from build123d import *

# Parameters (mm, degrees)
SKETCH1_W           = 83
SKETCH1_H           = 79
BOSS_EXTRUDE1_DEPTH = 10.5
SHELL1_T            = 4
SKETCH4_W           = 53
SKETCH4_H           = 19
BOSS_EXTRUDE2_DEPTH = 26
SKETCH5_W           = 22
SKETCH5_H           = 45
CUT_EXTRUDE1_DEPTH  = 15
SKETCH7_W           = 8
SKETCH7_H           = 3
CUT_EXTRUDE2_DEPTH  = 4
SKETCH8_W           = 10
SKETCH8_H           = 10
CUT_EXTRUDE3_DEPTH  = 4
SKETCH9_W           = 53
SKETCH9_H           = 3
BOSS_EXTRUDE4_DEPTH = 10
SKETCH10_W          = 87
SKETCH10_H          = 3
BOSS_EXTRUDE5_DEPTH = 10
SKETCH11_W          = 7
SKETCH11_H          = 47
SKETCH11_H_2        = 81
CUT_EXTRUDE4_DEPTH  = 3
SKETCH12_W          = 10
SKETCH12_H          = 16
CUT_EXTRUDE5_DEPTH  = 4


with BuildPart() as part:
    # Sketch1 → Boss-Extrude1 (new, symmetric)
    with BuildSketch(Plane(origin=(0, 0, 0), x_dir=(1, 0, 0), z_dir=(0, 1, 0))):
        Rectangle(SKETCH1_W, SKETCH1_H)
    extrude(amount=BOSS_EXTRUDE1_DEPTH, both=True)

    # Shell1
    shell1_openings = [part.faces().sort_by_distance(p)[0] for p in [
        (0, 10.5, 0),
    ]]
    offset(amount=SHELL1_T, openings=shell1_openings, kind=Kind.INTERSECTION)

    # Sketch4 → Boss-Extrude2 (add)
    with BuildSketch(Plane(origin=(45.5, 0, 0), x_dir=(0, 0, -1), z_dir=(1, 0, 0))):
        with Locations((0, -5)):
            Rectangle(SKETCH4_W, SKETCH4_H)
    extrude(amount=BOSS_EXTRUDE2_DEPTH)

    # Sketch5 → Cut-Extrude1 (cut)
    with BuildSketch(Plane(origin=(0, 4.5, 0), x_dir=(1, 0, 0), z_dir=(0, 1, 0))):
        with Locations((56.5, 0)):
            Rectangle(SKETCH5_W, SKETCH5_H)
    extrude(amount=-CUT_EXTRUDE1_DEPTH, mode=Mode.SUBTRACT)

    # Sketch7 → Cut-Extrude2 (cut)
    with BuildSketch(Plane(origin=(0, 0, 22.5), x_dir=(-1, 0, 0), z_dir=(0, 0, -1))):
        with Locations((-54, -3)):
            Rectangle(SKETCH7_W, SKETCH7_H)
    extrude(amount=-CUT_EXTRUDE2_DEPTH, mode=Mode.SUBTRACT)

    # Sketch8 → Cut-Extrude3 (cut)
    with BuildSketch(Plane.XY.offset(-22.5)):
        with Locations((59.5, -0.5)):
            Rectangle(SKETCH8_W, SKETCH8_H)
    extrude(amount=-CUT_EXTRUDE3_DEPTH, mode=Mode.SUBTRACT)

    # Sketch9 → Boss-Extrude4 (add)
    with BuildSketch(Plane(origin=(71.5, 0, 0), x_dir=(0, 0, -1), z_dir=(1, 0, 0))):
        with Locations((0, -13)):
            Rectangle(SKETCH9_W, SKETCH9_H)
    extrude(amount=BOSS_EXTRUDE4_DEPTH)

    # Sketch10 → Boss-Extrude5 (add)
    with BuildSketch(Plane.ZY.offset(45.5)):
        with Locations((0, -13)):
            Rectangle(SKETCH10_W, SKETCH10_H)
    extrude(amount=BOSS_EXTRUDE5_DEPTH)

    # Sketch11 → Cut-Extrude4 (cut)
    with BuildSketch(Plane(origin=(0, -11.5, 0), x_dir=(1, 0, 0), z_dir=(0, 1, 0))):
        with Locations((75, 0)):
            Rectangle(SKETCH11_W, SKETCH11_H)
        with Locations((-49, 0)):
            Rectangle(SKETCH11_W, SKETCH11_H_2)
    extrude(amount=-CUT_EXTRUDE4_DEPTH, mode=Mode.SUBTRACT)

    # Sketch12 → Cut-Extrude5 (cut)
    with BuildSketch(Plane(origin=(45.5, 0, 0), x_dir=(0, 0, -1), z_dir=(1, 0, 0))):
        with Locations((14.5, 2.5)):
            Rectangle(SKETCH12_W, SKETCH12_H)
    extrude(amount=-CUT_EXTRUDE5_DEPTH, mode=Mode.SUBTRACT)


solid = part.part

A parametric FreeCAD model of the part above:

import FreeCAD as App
import Part
import Sketcher

V = App.Vector


def faces_at(feature, points):
    """Names of the faces that lie closest to the given points."""
    faces = feature.Shape.Faces
    near = lambda p: min(range(len(faces)), key=lambda i: faces[i].distToShape(Part.Vertex(*p))[0])
    return sorted({f"Face{near(p) + 1}" for p in points})

doc = App.newDocument("Part")
body = doc.addObject("PartDesign::Body", "Body")

# Sketch on XZ plane
sketch1 = body.newObject("Sketcher::SketchObject", "Sketch")
sketch1.AttachmentSupport = (doc.getObject("XZ_Plane"), [""])
sketch1.MapMode = "FlatFace"
sketch1.addGeometry([
    Part.LineSegment(V(-41.5, -39.5, 0), V(-41.5, 39.5, 0)),
    Part.LineSegment(V(-41.5, 39.5, 0), V(41.5, 39.5, 0)),
    Part.LineSegment(V(41.5, 39.5, 0), V(41.5, -39.5, 0)),
    Part.LineSegment(V(41.5, -39.5, 0), V(-41.5, -39.5, 0)),
], False)
sketch1.addConstraint([
    Sketcher.Constraint("Coincident", 0, 2, 1, 1),
    Sketcher.Constraint("Coincident", 1, 2, 2, 1),
    Sketcher.Constraint("Coincident", 2, 2, 3, 1),
    Sketcher.Constraint("Coincident", 3, 2, 0, 1),
    Sketcher.Constraint("Vertical", 0),
    Sketcher.Constraint("Horizontal", 1),
    Sketcher.Constraint("Vertical", 2),
    Sketcher.Constraint("Horizontal", 3),
    Sketcher.Constraint("Symmetric", 0, 2, 2, 2, -1, 1),
    Sketcher.Constraint("DistanceX", 1, 1, 1, 2, 83.0),
    Sketcher.Constraint("DistanceY", 0, 1, 0, 2, 79.0),
])
pad1 = body.newObject("PartDesign::Pad", "Pad")
pad1.Profile = sketch1
pad1.Length = 21
pad1.Midplane = True
doc.recompute()

thickness = body.newObject("PartDesign::Thickness", "Thickness")
thickness.Base = (pad1, faces_at(pad1, [(0, 10.5, 0)]))
thickness.Value = 4
thickness.Reversed = False
thickness.Join = "Intersection"

# Sketch on YZ plane
sketch2 = body.newObject("Sketcher::SketchObject", "Sketch001")
sketch2.AttachmentSupport = (doc.getObject("YZ_Plane"), [""])
sketch2.MapMode = "FlatFace"
sketch2.AttachmentOffset = App.Placement(V(0, 0, 45.5), App.Rotation())
sketch2.addGeometry([
    Part.LineSegment(V(4.5, 26.5, 0), V(-14.5, 26.5, 0)),
    Part.LineSegment(V(-14.5, 26.5, 0), V(-14.5, -26.5, 0)),
    Part.LineSegment(V(-14.5, -26.5, 0), V(4.5, -26.5, 0)),
    Part.LineSegment(V(4.5, -26.5, 0), V(4.5, 26.5, 0)),
], False)
sketch2.addConstraint([
    Sketcher.Constraint("Coincident", 0, 2, 1, 1),
    Sketcher.Constraint("Coincident", 1, 2, 2, 1),
    Sketcher.Constraint("Coincident", 2, 2, 3, 1),
    Sketcher.Constraint("Coincident", 3, 2, 0, 1),
    Sketcher.Constraint("Horizontal", 0),
    Sketcher.Constraint("Vertical", 1),
    Sketcher.Constraint("Horizontal", 2),
    Sketcher.Constraint("Vertical", 3),
    Sketcher.Constraint("DistanceX", 0, 2, 0, 1, 19.0),
    Sketcher.Constraint("DistanceY", 1, 2, 1, 1, 53.0),
    Sketcher.Constraint("DistanceX", 0, 2, -1, 1, 14.5),
    Sketcher.Constraint("DistanceY", -1, 1, 0, 2, 26.5),
])
pad2 = body.newObject("PartDesign::Pad", "Pad001")
pad2.Profile = sketch2
pad2.Length = 26

# Sketch on XZ plane
sketch3 = body.newObject("Sketcher::SketchObject", "Sketch002")
sketch3.AttachmentSupport = (doc.getObject("XZ_Plane"), [""])
sketch3.MapMode = "FlatFace"
sketch3.AttachmentOffset = App.Placement(V(0, 0, -4.5), App.Rotation())
sketch3.addGeometry([
    Part.LineSegment(V(45.5, -22.5, 0), V(45.5, 22.5, 0)),
    Part.LineSegment(V(45.5, 22.5, 0), V(67.5, 22.5, 0)),
    Part.LineSegment(V(67.5, 22.5, 0), V(67.5, -22.5, 0)),
    Part.LineSegment(V(67.5, -22.5, 0), V(45.5, -22.5, 0)),
], False)
sketch3.addConstraint([
    Sketcher.Constraint("Coincident", 0, 2, 1, 1),
    Sketcher.Constraint("Coincident", 1, 2, 2, 1),
    Sketcher.Constraint("Coincident", 2, 2, 3, 1),
    Sketcher.Constraint("Coincident", 3, 2, 0, 1),
    Sketcher.Constraint("Vertical", 0),
    Sketcher.Constraint("Horizontal", 1),
    Sketcher.Constraint("Vertical", 2),
    Sketcher.Constraint("Horizontal", 3),
    Sketcher.Constraint("DistanceX", 1, 1, 1, 2, 22.0),
    Sketcher.Constraint("DistanceY", 0, 1, 0, 2, 45.0),
    Sketcher.Constraint("DistanceX", -1, 1, 0, 2, 45.5),
    Sketcher.Constraint("DistanceY", -1, 1, 0, 2, 22.5),
])
pocket1 = body.newObject("PartDesign::Pocket", "Pocket")
pocket1.Profile = sketch3
pocket1.Length = 15
pocket1.Reversed = True

# Sketch on XY plane
sketch4 = body.newObject("Sketcher::SketchObject", "Sketch003")
sketch4.AttachmentSupport = (doc.getObject("XY_Plane"), [""])
sketch4.MapMode = "FlatFace"
sketch4.AttachmentOffset = App.Placement(V(0, 0, 22.5), App.Rotation())
sketch4.addGeometry([
    Part.LineSegment(V(58, -1.5, 0), V(58, -4.5, 0)),
    Part.LineSegment(V(58, -4.5, 0), V(50, -4.5, 0)),
    Part.LineSegment(V(50, -4.5, 0), V(50, -1.5, 0)),
    Part.LineSegment(V(50, -1.5, 0), V(58, -1.5, 0)),
], False)
sketch4.addConstraint([
    Sketcher.Constraint("Coincident", 0, 2, 1, 1),
    Sketcher.Constraint("Coincident", 1, 2, 2, 1),
    Sketcher.Constraint("Coincident", 2, 2, 3, 1),
    Sketcher.Constraint("Coincident", 3, 2, 0, 1),
    Sketcher.Constraint("Vertical", 0),
    Sketcher.Constraint("Horizontal", 1),
    Sketcher.Constraint("Vertical", 2),
    Sketcher.Constraint("Horizontal", 3),
    Sketcher.Constraint("DistanceX", 1, 2, 1, 1, 8.0),
    Sketcher.Constraint("DistanceY", 0, 2, 0, 1, 3.0),
    Sketcher.Constraint("DistanceX", -1, 1, 0, 2, 58.0),
    Sketcher.Constraint("DistanceY", 0, 2, -1, 1, 4.5),
])
pocket2 = body.newObject("PartDesign::Pocket", "Pocket001")
pocket2.Profile = sketch4
pocket2.Length = 4
pocket2.Reversed = True

# Sketch on XY plane
sketch5 = body.newObject("Sketcher::SketchObject", "Sketch004")
sketch5.AttachmentSupport = (doc.getObject("XY_Plane"), [""])
sketch5.MapMode = "FlatFace"
sketch5.AttachmentOffset = App.Placement(V(0, 0, -22.5), App.Rotation())
sketch5.addGeometry([
    Part.LineSegment(V(54.5, 4.5, 0), V(54.5, -5.5, 0)),
    Part.LineSegment(V(54.5, -5.5, 0), V(64.5, -5.5, 0)),
    Part.LineSegment(V(64.5, -5.5, 0), V(64.5, 4.5, 0)),
    Part.LineSegment(V(64.5, 4.5, 0), V(54.5, 4.5, 0)),
], False)
sketch5.addConstraint([
    Sketcher.Constraint("Coincident", 0, 2, 1, 1),
    Sketcher.Constraint("Coincident", 1, 2, 2, 1),
    Sketcher.Constraint("Coincident", 2, 2, 3, 1),
    Sketcher.Constraint("Coincident", 3, 2, 0, 1),
    Sketcher.Constraint("Vertical", 0),
    Sketcher.Constraint("Horizontal", 1),
    Sketcher.Constraint("Vertical", 2),
    Sketcher.Constraint("Horizontal", 3),
    Sketcher.Constraint("Equal", 3, 0),
    Sketcher.Constraint("DistanceX", 1, 1, 1, 2, 10.0),
    Sketcher.Constraint("DistanceX", -1, 1, 0, 2, 54.5),
    Sketcher.Constraint("DistanceY", 0, 2, -1, 1, 5.5),
])
pocket3 = body.newObject("PartDesign::Pocket", "Pocket002")
pocket3.Profile = sketch5
pocket3.Length = 4

# Sketch on YZ plane
sketch6 = body.newObject("Sketcher::SketchObject", "Sketch005")
sketch6.AttachmentSupport = (doc.getObject("YZ_Plane"), [""])
sketch6.MapMode = "FlatFace"
sketch6.AttachmentOffset = App.Placement(V(0, 0, 71.5), App.Rotation())
sketch6.addGeometry([
    Part.LineSegment(V(-11.5, 26.5, 0), V(-14.5, 26.5, 0)),
    Part.LineSegment(V(-14.5, 26.5, 0), V(-14.5, -26.5, 0)),
    Part.LineSegment(V(-14.5, -26.5, 0), V(-11.5, -26.5, 0)),
    Part.LineSegment(V(-11.5, -26.5, 0), V(-11.5, 26.5, 0)),
], False)
sketch6.addConstraint([
    Sketcher.Constraint("Coincident", 0, 2, 1, 1),
    Sketcher.Constraint("Coincident", 1, 2, 2, 1),
    Sketcher.Constraint("Coincident", 2, 2, 3, 1),
    Sketcher.Constraint("Coincident", 3, 2, 0, 1),
    Sketcher.Constraint("Horizontal", 0),
    Sketcher.Constraint("Vertical", 1),
    Sketcher.Constraint("Horizontal", 2),
    Sketcher.Constraint("Vertical", 3),
    Sketcher.Constraint("DistanceX", 0, 2, 0, 1, 3.0),
    Sketcher.Constraint("DistanceY", 1, 2, 1, 1, 53.0),
    Sketcher.Constraint("DistanceX", 0, 2, -1, 1, 14.5),
    Sketcher.Constraint("DistanceY", -1, 1, 0, 2, 26.5),
])
pad3 = body.newObject("PartDesign::Pad", "Pad002")
pad3.Profile = sketch6
pad3.Length = 10

# Sketch on YZ plane
sketch7 = body.newObject("Sketcher::SketchObject", "Sketch006")
sketch7.AttachmentSupport = (doc.getObject("YZ_Plane"), [""])
sketch7.MapMode = "FlatFace"
sketch7.AttachmentOffset = App.Placement(V(0, 0, -45.5), App.Rotation())
sketch7.addGeometry([
    Part.LineSegment(V(-11.5, -43.5, 0), V(-14.5, -43.5, 0)),
    Part.LineSegment(V(-14.5, -43.5, 0), V(-14.5, 43.5, 0)),
    Part.LineSegment(V(-14.5, 43.5, 0), V(-11.5, 43.5, 0)),
    Part.LineSegment(V(-11.5, 43.5, 0), V(-11.5, -43.5, 0)),
], False)
sketch7.addConstraint([
    Sketcher.Constraint("Coincident", 0, 2, 1, 1),
    Sketcher.Constraint("Coincident", 1, 2, 2, 1),
    Sketcher.Constraint("Coincident", 2, 2, 3, 1),
    Sketcher.Constraint("Coincident", 3, 2, 0, 1),
    Sketcher.Constraint("Horizontal", 0),
    Sketcher.Constraint("Vertical", 1),
    Sketcher.Constraint("Horizontal", 2),
    Sketcher.Constraint("Vertical", 3),
    Sketcher.Constraint("DistanceX", 0, 2, 0, 1, 3.0),
    Sketcher.Constraint("DistanceY", 1, 1, 1, 2, 87.0),
    Sketcher.Constraint("DistanceX", 0, 2, -1, 1, 14.5),
    Sketcher.Constraint("DistanceY", 0, 2, -1, 1, 43.5),
])
pad4 = body.newObject("PartDesign::Pad", "Pad003")
pad4.Profile = sketch7
pad4.Length = 10
pad4.Reversed = True

# Sketch on XZ plane
sketch8 = body.newObject("Sketcher::SketchObject", "Sketch007")
sketch8.AttachmentSupport = (doc.getObject("XZ_Plane"), [""])
sketch8.MapMode = "FlatFace"
sketch8.AttachmentOffset = App.Placement(V(0, 0, 11.5), App.Rotation())
sketch8.addGeometry([
    Part.LineSegment(V(71.5, -23.5, 0), V(71.5, 23.5, 0)),  # 0
    Part.LineSegment(V(71.5, 23.5, 0), V(78.5, 23.5, 0)),  # 1
    Part.LineSegment(V(78.5, 23.5, 0), V(78.5, -23.5, 0)),  # 2
    Part.LineSegment(V(78.5, -23.5, 0), V(71.5, -23.5, 0)),  # 3
    Part.LineSegment(V(-52.5, -40.5, 0), V(-52.5, 40.5, 0)),  # 4
    Part.LineSegment(V(-52.5, 40.5, 0), V(-45.5, 40.5, 0)),  # 5
    Part.LineSegment(V(-45.5, 40.5, 0), V(-45.5, -40.5, 0)),  # 6
    Part.LineSegment(V(-45.5, -40.5, 0), V(-52.5, -40.5, 0)),  # 7
], False)
sketch8.addConstraint([
    Sketcher.Constraint("Coincident", 0, 2, 1, 1),
    Sketcher.Constraint("Coincident", 1, 2, 2, 1),
    Sketcher.Constraint("Coincident", 2, 2, 3, 1),
    Sketcher.Constraint("Coincident", 3, 2, 0, 1),
    Sketcher.Constraint("Coincident", 4, 2, 5, 1),
    Sketcher.Constraint("Coincident", 5, 2, 6, 1),
    Sketcher.Constraint("Coincident", 6, 2, 7, 1),
    Sketcher.Constraint("Coincident", 7, 2, 4, 1),
    Sketcher.Constraint("Vertical", 0),
    Sketcher.Constraint("Horizontal", 1),
    Sketcher.Constraint("Vertical", 2),
    Sketcher.Constraint("Horizontal", 3),
    Sketcher.Constraint("Vertical", 4),
    Sketcher.Constraint("Horizontal", 5),
    Sketcher.Constraint("Vertical", 6),
    Sketcher.Constraint("Horizontal", 7),
    Sketcher.Constraint("Equal", 3, 5),
    Sketcher.Constraint("DistanceX", 1, 1, 1, 2, 7.0),
    Sketcher.Constraint("DistanceY", 0, 1, 0, 2, 47.0),
    Sketcher.Constraint("DistanceY", 4, 1, 4, 2, 81.0),
    Sketcher.Constraint("DistanceX", 4, 2, 0, 2, 124.0),
    Sketcher.Constraint("DistanceY", 0, 2, 4, 2, 17.0),
    Sketcher.Constraint("DistanceX", -1, 1, 0, 2, 71.5),
    Sketcher.Constraint("DistanceY", -1, 1, 0, 2, 23.5),
])
pocket4 = body.newObject("PartDesign::Pocket", "Pocket003")
pocket4.Profile = sketch8
pocket4.Length = 3
pocket4.Reversed = True

# Sketch on YZ plane
sketch9 = body.newObject("Sketcher::SketchObject", "Sketch008")
sketch9.AttachmentSupport = (doc.getObject("YZ_Plane"), [""])
sketch9.MapMode = "FlatFace"
sketch9.AttachmentOffset = App.Placement(V(0, 0, 45.5), App.Rotation())
sketch9.addGeometry([
    Part.LineSegment(V(10.5, -9.5, 0), V(-5.5, -9.5, 0)),
    Part.LineSegment(V(-5.5, -9.5, 0), V(-5.5, -19.5, 0)),
    Part.LineSegment(V(-5.5, -19.5, 0), V(10.5, -19.5, 0)),
    Part.LineSegment(V(10.5, -19.5, 0), V(10.5, -9.5, 0)),
], False)
sketch9.addConstraint([
    Sketcher.Constraint("Coincident", 0, 2, 1, 1),
    Sketcher.Constraint("Coincident", 1, 2, 2, 1),
    Sketcher.Constraint("Coincident", 2, 2, 3, 1),
    Sketcher.Constraint("Coincident", 3, 2, 0, 1),
    Sketcher.Constraint("Horizontal", 0),
    Sketcher.Constraint("Vertical", 1),
    Sketcher.Constraint("Horizontal", 2),
    Sketcher.Constraint("Vertical", 3),
    Sketcher.Constraint("DistanceX", 0, 2, 0, 1, 16.0),
    Sketcher.Constraint("DistanceY", 1, 2, 1, 1, 10.0),
    Sketcher.Constraint("DistanceX", 0, 2, -1, 1, 5.5),
    Sketcher.Constraint("DistanceY", 0, 2, -1, 1, 9.5),
])
pocket5 = body.newObject("PartDesign::Pocket", "Pocket004")
pocket5.Profile = sketch9
pocket5.Length = 4

doc.recompute()
